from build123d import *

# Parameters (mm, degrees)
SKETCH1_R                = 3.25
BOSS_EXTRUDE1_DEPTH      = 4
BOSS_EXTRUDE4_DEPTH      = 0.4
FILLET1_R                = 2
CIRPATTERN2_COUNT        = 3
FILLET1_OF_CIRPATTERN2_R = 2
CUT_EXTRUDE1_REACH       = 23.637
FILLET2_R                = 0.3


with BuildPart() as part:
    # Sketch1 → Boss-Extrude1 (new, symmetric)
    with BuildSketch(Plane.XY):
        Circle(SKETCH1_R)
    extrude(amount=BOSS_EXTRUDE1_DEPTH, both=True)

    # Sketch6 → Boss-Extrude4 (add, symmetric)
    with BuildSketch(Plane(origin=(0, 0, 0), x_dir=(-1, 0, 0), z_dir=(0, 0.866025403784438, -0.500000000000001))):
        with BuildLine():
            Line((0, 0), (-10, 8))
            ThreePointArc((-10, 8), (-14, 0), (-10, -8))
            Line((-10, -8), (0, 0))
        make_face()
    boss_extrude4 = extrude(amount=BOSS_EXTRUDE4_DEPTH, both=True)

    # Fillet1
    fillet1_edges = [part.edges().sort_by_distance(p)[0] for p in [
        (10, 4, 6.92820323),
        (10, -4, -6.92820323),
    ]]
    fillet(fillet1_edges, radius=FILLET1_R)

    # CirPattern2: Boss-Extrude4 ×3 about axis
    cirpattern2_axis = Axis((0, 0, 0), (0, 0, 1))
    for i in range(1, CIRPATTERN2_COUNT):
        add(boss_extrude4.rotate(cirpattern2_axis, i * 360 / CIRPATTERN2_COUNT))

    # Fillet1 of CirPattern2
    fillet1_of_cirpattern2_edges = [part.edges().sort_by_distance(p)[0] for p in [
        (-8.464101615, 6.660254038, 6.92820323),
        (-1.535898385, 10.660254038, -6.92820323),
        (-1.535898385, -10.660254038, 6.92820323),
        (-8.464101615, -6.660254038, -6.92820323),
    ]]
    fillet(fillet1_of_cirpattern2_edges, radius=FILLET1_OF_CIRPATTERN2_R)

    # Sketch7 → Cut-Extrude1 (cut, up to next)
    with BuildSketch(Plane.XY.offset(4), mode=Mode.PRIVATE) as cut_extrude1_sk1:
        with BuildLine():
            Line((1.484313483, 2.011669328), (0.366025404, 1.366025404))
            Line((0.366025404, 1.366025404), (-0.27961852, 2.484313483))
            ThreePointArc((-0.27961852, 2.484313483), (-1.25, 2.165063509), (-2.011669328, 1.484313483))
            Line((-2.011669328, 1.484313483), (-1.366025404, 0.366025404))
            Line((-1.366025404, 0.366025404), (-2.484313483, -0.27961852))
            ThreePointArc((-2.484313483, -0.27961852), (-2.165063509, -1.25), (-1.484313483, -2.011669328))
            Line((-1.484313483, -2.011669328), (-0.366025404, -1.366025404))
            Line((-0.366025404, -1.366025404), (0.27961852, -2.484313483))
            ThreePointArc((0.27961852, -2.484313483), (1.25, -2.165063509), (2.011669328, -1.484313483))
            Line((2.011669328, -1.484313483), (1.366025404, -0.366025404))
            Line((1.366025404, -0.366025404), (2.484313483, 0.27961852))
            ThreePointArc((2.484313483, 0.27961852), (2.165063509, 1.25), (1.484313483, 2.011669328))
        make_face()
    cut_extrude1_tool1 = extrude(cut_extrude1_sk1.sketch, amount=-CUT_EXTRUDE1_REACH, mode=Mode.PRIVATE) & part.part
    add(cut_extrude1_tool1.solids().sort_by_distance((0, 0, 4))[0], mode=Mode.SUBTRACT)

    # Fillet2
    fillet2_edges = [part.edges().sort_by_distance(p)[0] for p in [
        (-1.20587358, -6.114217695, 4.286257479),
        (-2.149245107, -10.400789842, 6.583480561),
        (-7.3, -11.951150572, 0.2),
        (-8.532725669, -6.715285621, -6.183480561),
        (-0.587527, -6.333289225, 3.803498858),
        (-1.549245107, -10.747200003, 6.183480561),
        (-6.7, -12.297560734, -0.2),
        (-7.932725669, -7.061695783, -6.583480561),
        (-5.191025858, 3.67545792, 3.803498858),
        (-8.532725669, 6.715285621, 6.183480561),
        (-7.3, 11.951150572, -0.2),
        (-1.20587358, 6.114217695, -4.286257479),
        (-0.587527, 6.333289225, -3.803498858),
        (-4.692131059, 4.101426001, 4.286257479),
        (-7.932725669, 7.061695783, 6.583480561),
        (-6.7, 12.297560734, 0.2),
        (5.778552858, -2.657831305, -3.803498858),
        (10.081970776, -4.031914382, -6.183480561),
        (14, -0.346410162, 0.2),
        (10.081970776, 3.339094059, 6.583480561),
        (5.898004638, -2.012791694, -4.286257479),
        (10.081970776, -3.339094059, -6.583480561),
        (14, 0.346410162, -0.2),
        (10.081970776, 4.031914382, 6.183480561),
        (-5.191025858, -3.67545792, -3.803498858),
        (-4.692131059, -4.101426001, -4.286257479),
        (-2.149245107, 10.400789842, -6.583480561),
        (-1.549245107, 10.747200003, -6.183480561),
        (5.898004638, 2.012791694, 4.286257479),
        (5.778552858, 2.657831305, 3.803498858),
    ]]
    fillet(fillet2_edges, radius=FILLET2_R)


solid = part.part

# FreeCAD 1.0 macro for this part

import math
import FreeCAD as App
import Part
import Sketcher

V = App.Vector
Q = App.Units.Quantity


def edges_at(feature, points):
    """Names of the edges that pass closest to the given points."""
    edges = feature.Shape.Edges
    near = lambda p: min(range(len(edges)), key=lambda i: edges[i].distToShape(Part.Vertex(*p))[0])
    return sorted({f"Edge{near(p) + 1}" for p in points})

doc = App.newDocument("Part")
body = doc.addObject("PartDesign::Body", "Body")

# Sketch on XY plane
sketch1 = doc.addObject("Sketcher::SketchObject", "Sketch")
body.addObject(sketch1)
sketch1.AttachmentSupport = (doc.XY_Plane, [""])
sketch1.MapMode = "FlatFace"
sketch1.addGeometry(Part.Circle(V(0, 0, 0), V(0, 0, 1), 3.2), False)
sketch1.addConstraint([
    Sketcher.Constraint("Coincident", 0, 3, -1, 1),
    Sketcher.Constraint("Diameter", 0, 6.5),
])
pad1 = doc.addObject("PartDesign::Pad", "Pad")
body.addObject(pad1)
pad1.Profile = sketch1
pad1.Length = 8
pad1.Midplane = True

# Sketch on an angled plane
sketch2 = doc.addObject("Sketcher::SketchObject", "Sketch001")
body.addObject(sketch2)
sketch2.Placement = App.Placement(V(0, 0, 0), App.Rotation(V(-1, 0, 0), V(0, 0.5, 0.866025404), V(0, 0.866025404, -0.5), "ZXY"))
sketch2.addGeometry([
    Part.LineSegment(V(0, 0, 0), V(-10, 8, 0)),
    Part.ArcOfCircle(Part.Circle(V(-4, 0, 0), V(0, 0, 1), 10), math.radians(127), math.radians(233)),
    Part.LineSegment(V(-10, -8, 0), V(0, 0, 0)),
], False)
sketch2.addConstraint([
    Sketcher.Constraint("Coincident", 0, 2, 1, 1),
    Sketcher.Constraint("Coincident", 1, 2, 2, 1),
    Sketcher.Constraint("Coincident", 2, 2, 0, 1),
    Sketcher.Constraint("Coincident", 2, 2, -1, 1),
    Sketcher.Constraint("Symmetric", 0, 2, 1, 2, -1),
    Sketcher.Constraint("Radius", 1, 10.0),
    Sketcher.Constraint("DistanceX", 1, 3, -1, 1, 4.0),
    Sketcher.Constraint("DistanceX", 0, 2, -1, 1, 10.0),
])
pad2 = doc.addObject("PartDesign::Pad", "Pad001")
body.addObject(pad2)
pad2.Profile = sketch2
pad2.Length = 0.8
pad2.Midplane = True
doc.recompute()

fillet = doc.addObject("PartDesign::Fillet", "Fillet")
body.addObject(fillet)
fillet.Base = (pad2, edges_at(pad2, [(10, 4, 6.928), (10, -4, -6.928)]))
fillet.Radius = 2
doc.recompute()

polarpattern = doc.addObject("PartDesign::PolarPattern", "PolarPattern")
body.addObject(polarpattern)
polarpattern.Originals = [pad2]
polarpattern.Axis = (doc.Z_Axis, [""])
polarpattern.Angle = 360
polarpattern.Occurrences = 3
body.Tip = polarpattern
doc.recompute()

fillet2 = doc.addObject("PartDesign::Fillet", "Fillet001")
body.addObject(fillet2)
fillet2.Base = (polarpattern, edges_at(polarpattern, [
    (-8.464, 6.66, 6.928),
    (-1.536, 10.66, -6.928),
    (-1.536, -10.66, 6.928),
    (-8.464, -6.66, -6.928),
]))
fillet2.Radius = 2

# Sketch on XY plane
sketch3 = doc.addObject("Sketcher::SketchObject", "Sketch002")
body.addObject(sketch3)
sketch3.AttachmentSupport = (doc.XY_Plane, [""])
sketch3.MapMode = "FlatFace"
sketch3.AttachmentOffset = App.Placement(V(0, 0, 4), App.Rotation())
sketch3.addGeometry([
    Part.LineSegment(V(1.5, 2, 0), V(0.4, 1.4, 0)),  # 0
    Part.LineSegment(V(0.4, 1.4, 0), V(-0.3, 2.5, 0)),  # 1
    Part.ArcOfCircle(Part.Circle(V(0, 0, 0), V(0, 0, 1), 2.5), math.radians(96), math.radians(144)),  # 2
    Part.LineSegment(V(-2, 1.5, 0), V(-1.4, 0.4, 0)),  # 3
    Part.LineSegment(V(-1.4, 0.4, 0), V(-2.5, -0.3, 0)),  # 4
    Part.ArcOfCircle(Part.Circle(V(0, 0, 0), V(0, 0, 1), 2.5), math.radians(-174), math.radians(-126)),  # 5
    Part.LineSegment(V(-1.5, -2, 0), V(-0.4, -1.4, 0)),  # 6
    Part.LineSegment(V(-0.4, -1.4, 0), V(0.3, -2.5, 0)),  # 7
    Part.ArcOfCircle(Part.Circle(V(0, 0, 0), V(0, 0, 1), 2.5), math.radians(-84), math.radians(-36)),  # 8
    Part.LineSegment(V(2, -1.5, 0), V(1.4, -0.4, 0)),  # 9
    Part.LineSegment(V(1.4, -0.4, 0), V(2.5, 0.3, 0)),  # 10
    Part.ArcOfCircle(Part.Circle(V(0, 0, 0), V(0, 0, 1), 2.5), math.radians(6), math.radians(54)),  # 11
], False)
sketch3.addConstraint([
    Sketcher.Constraint("Coincident", 0, 2, 1, 1),
    Sketcher.Constraint("Coincident", 1, 2, 2, 1),
    Sketcher.Constraint("Coincident", 2, 2, 3, 1),
    Sketcher.Constraint("Coincident", 3, 2, 4, 1),
    Sketcher.Constraint("Coincident", 4, 2, 5, 1),
    Sketcher.Constraint("Coincident", 5, 2, 6, 1),
    Sketcher.Constraint("Coincident", 6, 2, 7, 1),
    Sketcher.Constraint("Coincident", 7, 2, 8, 1),
    Sketcher.Constraint("Coincident", 8, 2, 9, 1),
    Sketcher.Constraint("Coincident", 9, 2, 10, 1),
    Sketcher.Constraint("Coincident", 10, 2, 11, 1),
    Sketcher.Constraint("Coincident", 11, 2, 0, 1),
    Sketcher.Constraint("Coincident", 2, 3, -1, 1),
    Sketcher.Constraint("Coincident", 5, 3, -1, 1),
    Sketcher.Constraint("Coincident", 8, 3, -1, 1),
    Sketcher.Constraint("Coincident", 11, 3, -1, 1),
    Sketcher.Constraint("Equal", 2, 5),
    Sketcher.Constraint("Equal", 5, 8),
    Sketcher.Constraint("Equal", 8, 11),
    Sketcher.Constraint("Symmetric", 0, 2, 6, 2, -1, 1),
    Sketcher.Constraint("Symmetric", 3, 2, 9, 2, -1, 1),
    Sketcher.Constraint("Perpendicular", 0, 1),
    Sketcher.Constraint("Parallel", 1, 3),
    Sketcher.Constraint("Perpendicular", 3, 4),
    Sketcher.Constraint("Parallel", 4, 6),
    Sketcher.Constraint("Perpendicular", 6, 7),
    Sketcher.Constraint("Parallel", 7, 9),
    Sketcher.Constraint("Perpendicular", 9, 10),
    Sketcher.Constraint("Equal", 0, 1),
    Sketcher.Constraint("Equal", 1, 3),
    Sketcher.Constraint("Equal", 3, 4),
    Sketcher.Constraint("Radius", 2, 2.5),
    Sketcher.Constraint("Angle", 0, Q("-150 deg")),
    Sketcher.Constraint("DistanceY", 2, 2, 1, 2, 1.0),
])
pocket1 = doc.addObject("PartDesign::Pocket", "Pocket")
body.addObject(pocket1)
pocket1.Profile = sketch3
pocket1.Type = "UpToFirst"
doc.recompute()

fillet3 = doc.addObject("PartDesign::Fillet", "Fillet002")
body.addObject(fillet3)
fillet3.Base = (pocket1, edges_at(pocket1, [
    (-1.206, -6.114, 4.286),
    (-2.149, -10.401, 6.583),
    (-7.3, -11.951, 0.2),
    (-8.533, -6.715, -6.183),
    (-0.588, -6.333, 3.803),
    (-1.549, -10.747, 6.183),
    (-6.7, -12.298, -0.2),
    (-7.933, -7.062, -6.583),
    (-5.191, 3.675, 3.803),
    (-8.533, 6.715, 6.183),
    (-7.3, 11.951, -0.2),
    (-1.206, 6.114, -4.286),
    (-0.588, 6.333, -3.803),
    (-4.692, 4.101, 4.286),
    (-7.933, 7.062, 6.583),
    (-6.7, 12.298, 0.2),
    (5.779, -2.658, -3.803),
    (10.082, -4.032, -6.183),
    (14, -0.346, 0.2),
    (10.082, 3.339, 6.583),
    (5.898, -2.013, -4.286),
    (10.082, -3.339, -6.583),
    (14, 0.346, -0.2),
    (10.082, 4.032, 6.183),
    (-5.191, -3.675, -3.803),
    (-4.692, -4.101, -4.286),
    (-2.149, 10.401, -6.583),
    (-1.549, 10.747, -6.183),
    (5.898, 2.013, 4.286),
    (5.779, 2.658, 3.803),
]))
fillet3.Radius = 0.3

doc.recompute()
